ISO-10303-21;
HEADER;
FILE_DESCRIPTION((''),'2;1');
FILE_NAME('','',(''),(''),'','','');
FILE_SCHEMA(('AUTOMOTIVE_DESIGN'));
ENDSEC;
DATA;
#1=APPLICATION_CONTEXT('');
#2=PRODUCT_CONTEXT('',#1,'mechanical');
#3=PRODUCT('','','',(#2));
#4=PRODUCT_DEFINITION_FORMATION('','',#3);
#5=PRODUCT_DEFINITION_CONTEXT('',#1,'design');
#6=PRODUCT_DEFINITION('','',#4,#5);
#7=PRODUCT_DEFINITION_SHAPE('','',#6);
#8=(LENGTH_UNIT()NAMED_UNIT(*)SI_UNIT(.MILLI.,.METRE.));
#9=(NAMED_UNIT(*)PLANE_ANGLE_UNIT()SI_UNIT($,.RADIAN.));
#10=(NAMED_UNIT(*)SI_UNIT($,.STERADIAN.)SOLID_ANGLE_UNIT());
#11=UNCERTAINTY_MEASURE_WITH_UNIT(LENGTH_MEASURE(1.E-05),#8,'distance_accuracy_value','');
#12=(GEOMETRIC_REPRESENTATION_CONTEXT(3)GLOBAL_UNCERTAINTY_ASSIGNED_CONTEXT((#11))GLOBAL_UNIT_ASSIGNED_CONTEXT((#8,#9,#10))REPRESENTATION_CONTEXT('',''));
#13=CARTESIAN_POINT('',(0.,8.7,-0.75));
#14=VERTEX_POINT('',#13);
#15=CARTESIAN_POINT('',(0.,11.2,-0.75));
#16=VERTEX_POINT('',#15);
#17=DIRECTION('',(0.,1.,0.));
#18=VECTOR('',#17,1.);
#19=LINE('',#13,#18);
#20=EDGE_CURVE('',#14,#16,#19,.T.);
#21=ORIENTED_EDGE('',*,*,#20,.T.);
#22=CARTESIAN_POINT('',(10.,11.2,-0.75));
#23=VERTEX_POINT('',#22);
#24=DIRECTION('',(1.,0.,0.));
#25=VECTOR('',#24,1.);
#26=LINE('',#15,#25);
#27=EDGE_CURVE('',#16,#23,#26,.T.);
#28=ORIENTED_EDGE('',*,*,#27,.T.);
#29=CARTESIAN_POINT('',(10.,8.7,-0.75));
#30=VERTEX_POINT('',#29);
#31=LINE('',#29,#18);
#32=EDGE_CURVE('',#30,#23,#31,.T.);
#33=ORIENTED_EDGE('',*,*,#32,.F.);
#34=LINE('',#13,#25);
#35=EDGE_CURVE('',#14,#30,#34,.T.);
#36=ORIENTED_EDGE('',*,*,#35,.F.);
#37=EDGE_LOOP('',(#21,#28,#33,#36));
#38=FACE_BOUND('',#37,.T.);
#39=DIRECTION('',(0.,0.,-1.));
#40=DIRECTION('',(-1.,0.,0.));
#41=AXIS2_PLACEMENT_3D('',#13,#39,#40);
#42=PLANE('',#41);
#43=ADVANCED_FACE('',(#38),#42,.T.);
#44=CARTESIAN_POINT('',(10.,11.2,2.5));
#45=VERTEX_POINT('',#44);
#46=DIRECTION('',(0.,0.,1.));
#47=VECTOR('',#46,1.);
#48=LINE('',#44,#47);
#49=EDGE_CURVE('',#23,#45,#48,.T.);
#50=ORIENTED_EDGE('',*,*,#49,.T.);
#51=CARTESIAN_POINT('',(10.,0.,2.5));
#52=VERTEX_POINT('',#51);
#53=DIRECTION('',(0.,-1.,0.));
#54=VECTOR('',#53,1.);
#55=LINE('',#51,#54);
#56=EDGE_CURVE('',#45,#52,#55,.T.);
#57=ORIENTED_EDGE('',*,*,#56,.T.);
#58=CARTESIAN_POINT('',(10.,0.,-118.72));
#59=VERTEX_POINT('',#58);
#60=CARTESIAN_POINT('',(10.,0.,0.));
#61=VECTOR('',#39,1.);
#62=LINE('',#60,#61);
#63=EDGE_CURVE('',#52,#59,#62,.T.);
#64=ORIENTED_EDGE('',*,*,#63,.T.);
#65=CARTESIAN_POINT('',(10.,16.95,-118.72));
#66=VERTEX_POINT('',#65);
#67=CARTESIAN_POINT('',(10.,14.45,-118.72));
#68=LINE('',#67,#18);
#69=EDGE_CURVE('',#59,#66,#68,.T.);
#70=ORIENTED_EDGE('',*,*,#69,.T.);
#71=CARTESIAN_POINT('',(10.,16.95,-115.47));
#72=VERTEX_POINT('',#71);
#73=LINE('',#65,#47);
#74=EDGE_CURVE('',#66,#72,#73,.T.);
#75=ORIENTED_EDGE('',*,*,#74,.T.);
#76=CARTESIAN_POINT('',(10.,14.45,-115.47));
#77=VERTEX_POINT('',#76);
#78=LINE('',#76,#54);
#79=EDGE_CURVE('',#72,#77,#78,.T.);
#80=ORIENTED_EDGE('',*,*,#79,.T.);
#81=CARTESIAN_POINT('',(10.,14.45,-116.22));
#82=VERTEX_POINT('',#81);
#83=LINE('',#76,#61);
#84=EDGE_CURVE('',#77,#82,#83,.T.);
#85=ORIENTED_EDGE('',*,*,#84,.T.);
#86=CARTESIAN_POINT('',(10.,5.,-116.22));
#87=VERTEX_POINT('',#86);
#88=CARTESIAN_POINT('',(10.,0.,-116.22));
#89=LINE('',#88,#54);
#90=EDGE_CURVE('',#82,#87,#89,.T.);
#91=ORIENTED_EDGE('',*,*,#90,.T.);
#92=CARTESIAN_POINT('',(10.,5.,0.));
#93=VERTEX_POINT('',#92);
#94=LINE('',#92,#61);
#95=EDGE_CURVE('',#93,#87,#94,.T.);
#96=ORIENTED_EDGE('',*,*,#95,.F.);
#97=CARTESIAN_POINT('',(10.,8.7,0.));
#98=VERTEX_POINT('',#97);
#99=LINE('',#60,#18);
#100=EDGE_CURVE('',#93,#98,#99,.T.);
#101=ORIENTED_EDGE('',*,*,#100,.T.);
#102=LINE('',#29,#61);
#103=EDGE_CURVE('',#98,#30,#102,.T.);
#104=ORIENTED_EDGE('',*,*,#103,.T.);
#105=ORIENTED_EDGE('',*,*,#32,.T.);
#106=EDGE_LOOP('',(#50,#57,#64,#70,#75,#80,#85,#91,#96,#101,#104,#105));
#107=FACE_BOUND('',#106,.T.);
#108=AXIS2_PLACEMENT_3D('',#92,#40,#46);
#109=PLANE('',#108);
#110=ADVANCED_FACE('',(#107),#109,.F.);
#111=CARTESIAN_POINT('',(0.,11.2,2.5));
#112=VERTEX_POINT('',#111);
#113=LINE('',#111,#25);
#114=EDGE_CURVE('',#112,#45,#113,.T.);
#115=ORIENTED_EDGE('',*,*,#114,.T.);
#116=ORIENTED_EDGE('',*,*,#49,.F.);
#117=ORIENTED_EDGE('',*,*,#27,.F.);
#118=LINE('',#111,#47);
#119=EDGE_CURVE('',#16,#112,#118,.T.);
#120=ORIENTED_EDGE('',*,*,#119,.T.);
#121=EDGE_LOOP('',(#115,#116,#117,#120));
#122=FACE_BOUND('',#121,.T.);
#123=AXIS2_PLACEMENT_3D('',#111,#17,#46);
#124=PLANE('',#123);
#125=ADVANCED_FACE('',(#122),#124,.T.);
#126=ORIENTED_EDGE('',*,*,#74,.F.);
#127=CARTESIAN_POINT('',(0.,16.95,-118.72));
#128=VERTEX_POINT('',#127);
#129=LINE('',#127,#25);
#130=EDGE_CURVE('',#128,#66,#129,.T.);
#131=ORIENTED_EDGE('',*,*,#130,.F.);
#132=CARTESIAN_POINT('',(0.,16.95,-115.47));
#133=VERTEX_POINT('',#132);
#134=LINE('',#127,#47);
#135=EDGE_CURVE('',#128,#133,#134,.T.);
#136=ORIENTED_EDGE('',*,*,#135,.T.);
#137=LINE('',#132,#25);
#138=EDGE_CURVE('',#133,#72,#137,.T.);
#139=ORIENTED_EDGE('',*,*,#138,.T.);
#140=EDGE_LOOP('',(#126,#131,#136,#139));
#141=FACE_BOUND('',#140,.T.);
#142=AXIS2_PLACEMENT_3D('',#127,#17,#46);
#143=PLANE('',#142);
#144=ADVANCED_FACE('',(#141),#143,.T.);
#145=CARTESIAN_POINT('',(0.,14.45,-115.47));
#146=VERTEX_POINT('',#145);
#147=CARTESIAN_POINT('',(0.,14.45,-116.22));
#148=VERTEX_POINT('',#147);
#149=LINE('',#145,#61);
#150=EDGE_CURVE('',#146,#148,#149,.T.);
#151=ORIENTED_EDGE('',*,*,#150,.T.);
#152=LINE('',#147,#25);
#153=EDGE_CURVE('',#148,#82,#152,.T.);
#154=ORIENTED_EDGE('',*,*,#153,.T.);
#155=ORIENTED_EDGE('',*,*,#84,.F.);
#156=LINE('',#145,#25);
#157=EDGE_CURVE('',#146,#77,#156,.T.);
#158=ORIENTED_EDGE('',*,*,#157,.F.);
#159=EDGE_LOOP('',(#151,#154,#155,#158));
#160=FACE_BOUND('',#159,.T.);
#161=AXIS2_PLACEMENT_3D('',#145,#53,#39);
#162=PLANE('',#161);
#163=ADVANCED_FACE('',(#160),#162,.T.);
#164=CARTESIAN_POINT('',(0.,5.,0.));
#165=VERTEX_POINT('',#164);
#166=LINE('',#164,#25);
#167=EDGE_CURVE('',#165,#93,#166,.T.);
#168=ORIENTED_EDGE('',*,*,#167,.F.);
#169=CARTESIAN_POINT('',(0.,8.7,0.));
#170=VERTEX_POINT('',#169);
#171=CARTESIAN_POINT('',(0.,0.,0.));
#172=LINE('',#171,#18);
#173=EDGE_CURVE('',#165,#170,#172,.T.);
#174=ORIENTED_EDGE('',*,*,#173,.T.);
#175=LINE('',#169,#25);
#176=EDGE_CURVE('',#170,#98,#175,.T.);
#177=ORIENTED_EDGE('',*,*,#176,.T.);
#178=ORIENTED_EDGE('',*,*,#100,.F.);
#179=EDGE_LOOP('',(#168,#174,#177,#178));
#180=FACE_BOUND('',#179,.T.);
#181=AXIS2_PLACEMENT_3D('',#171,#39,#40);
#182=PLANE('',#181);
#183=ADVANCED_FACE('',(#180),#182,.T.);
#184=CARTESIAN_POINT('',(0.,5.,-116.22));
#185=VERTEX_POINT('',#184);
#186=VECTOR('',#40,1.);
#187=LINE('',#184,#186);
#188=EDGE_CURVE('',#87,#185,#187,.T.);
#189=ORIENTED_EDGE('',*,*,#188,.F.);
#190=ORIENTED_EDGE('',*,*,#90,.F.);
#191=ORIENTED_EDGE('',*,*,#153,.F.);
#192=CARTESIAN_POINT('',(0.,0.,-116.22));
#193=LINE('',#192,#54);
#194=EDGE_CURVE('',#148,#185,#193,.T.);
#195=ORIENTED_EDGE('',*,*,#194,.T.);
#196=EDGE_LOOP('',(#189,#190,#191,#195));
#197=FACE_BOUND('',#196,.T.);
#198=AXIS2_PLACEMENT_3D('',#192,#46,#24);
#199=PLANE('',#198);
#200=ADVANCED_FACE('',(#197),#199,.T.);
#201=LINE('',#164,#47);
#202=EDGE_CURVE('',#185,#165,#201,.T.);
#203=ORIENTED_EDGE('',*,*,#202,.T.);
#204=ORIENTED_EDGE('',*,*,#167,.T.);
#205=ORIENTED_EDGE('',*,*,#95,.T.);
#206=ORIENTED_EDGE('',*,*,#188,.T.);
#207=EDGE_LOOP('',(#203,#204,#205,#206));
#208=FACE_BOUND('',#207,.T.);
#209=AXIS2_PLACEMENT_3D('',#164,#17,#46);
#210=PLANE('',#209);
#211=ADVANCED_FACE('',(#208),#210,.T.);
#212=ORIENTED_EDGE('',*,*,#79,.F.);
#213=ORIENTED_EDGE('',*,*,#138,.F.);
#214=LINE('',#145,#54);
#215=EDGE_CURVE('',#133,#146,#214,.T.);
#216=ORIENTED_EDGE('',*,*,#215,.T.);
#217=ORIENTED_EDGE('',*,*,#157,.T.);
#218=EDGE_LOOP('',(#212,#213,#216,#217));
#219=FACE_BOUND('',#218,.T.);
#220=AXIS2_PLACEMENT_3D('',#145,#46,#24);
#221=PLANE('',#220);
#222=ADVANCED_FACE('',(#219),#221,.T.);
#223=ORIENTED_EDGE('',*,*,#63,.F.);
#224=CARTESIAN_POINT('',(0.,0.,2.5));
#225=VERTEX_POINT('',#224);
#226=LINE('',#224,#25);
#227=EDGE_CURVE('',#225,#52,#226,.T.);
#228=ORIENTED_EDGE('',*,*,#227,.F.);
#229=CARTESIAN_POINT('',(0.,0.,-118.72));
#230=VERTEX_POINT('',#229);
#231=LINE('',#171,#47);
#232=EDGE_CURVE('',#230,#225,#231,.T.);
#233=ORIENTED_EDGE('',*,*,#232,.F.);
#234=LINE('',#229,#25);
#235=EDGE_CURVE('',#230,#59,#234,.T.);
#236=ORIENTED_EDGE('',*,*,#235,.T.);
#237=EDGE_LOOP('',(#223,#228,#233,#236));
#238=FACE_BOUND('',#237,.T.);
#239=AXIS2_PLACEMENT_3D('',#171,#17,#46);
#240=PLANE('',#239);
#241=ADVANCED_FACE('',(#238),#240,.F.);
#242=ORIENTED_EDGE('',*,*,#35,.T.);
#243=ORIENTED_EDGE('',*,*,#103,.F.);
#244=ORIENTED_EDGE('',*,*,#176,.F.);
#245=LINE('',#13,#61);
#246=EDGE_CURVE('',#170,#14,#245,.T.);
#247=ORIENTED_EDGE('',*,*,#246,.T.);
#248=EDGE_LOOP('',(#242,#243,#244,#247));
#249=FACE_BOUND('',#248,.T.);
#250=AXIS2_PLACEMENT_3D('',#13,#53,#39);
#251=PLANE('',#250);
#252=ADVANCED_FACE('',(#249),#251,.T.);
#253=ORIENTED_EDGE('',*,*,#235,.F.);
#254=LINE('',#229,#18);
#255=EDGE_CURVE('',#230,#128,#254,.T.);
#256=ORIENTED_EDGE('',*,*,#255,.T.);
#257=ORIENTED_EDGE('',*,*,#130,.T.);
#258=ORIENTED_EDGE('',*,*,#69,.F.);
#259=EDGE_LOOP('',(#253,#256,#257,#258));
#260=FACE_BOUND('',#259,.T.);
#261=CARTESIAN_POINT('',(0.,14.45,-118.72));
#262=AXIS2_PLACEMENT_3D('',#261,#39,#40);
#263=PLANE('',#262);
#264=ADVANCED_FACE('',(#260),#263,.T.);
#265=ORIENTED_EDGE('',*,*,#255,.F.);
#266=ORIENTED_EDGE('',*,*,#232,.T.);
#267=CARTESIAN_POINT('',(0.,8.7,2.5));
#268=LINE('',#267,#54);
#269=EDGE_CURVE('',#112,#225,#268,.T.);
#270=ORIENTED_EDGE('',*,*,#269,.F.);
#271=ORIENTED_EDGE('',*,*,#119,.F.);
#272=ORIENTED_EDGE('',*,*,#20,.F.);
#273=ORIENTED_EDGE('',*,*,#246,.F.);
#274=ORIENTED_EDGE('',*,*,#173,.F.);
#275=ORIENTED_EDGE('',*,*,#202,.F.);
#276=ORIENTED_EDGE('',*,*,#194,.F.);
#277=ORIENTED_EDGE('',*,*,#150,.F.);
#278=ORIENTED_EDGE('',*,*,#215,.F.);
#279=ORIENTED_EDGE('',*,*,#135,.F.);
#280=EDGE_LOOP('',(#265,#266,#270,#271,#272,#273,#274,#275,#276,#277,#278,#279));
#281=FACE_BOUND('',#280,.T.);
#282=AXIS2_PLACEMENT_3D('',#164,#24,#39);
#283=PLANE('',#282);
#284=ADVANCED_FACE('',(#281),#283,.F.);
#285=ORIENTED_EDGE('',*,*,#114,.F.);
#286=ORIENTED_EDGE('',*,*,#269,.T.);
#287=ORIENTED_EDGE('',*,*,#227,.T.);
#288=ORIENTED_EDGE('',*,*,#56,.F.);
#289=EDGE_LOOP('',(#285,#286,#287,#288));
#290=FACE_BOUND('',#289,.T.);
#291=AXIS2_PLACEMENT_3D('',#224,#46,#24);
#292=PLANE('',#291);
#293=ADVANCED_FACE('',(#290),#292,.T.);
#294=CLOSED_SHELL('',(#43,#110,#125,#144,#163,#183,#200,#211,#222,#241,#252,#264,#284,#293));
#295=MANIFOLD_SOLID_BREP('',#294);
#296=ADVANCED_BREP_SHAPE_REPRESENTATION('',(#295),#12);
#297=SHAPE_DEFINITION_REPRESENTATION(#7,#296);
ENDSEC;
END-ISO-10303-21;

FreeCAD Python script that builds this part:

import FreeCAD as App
import Part
import Sketcher
Q = App.Units.Quantity

doc = App.newDocument("Part")
body = doc.addObject("PartDesign::Body", "Body")

# Sketch on XZ plane
sketch1 = doc.addObject("Sketcher::SketchObject", "Sketch")
body.addObject(sketch1)
sketch1.AttachmentSupport = (doc.XZ_Plane, [""])
sketch1.MapMode = "FlatFace"
sketch1.addGeometry([
    Part.LineSegment(App.Vector(0, -116.22, 0), App.Vector(0, 0, 0)),
    Part.LineSegment(App.Vector(0, 0, 0), App.Vector(10, 0, 0)),
    Part.LineSegment(App.Vector(10, 0, 0), App.Vector(10, -116.22, 0)),
    Part.LineSegment(App.Vector(10, -116.22, 0), App.Vector(0, -116.22, 0)),
], False)
sketch1.addConstraint([
    Sketcher.Constraint("Coincident", 0, 2, 1, 1),
    Sketcher.Constraint("Coincident", 1, 2, 2, 1),
    Sketcher.Constraint("Coincident", 2, 2, 3, 1),
    Sketcher.Constraint("Coincident", 3, 2, 0, 1),
    Sketcher.Constraint("Vertical", 0),
    Sketcher.Constraint("Horizontal", 1),
    Sketcher.Constraint("Vertical", 2),
    Sketcher.Constraint("Horizontal", 3),
    Sketcher.Constraint("Coincident", 0, 2, -1, 1),
    Sketcher.Constraint("DistanceX", 1, 1, 1, 2, Q("10 mm")),
    Sketcher.Constraint("DistanceY", 0, 1, 0, 2, Q("116.22 mm")),
])
pad1 = doc.addObject("PartDesign::Pad", "Pad")
body.addObject(pad1)
pad1.Profile = sketch1
pad1.Length = 5
pad1.Reversed = True

# Sketch on YZ plane
sketch2 = doc.addObject("Sketcher::SketchObject", "Sketch001")
body.addObject(sketch2)
sketch2.AttachmentSupport = (doc.YZ_Plane, [""])
sketch2.MapMode = "FlatFace"
sketch2.AttachmentOffset = App.Placement(App.Vector(0, 0, 10), App.Rotation())
sketch2.addGeometry([
    Part.LineSegment(App.Vector(8.7, 0, 0), App.Vector(8.7, -0.75, 0)),  # 0
    Part.LineSegment(App.Vector(8.7, -0.75, 0), App.Vector(11.2, -0.75, 0)),  # 1
    Part.LineSegment(App.Vector(11.2, -0.75, 0), App.Vector(11.2, 2.5, 0)),  # 2
    Part.LineSegment(App.Vector(11.2, 2.5, 0), App.Vector(0, 2.5, 0)),  # 3
    Part.LineSegment(App.Vector(0, 2.5, 0), App.Vector(0, 0, 0)),  # 4
    Part.LineSegment(App.Vector(0, 0, 0), App.Vector(8.7, 0, 0)),  # 5
    Part.LineSegment(App.Vector(0, -116.22, 0), App.Vector(0, -118.72, 0)),  # 6
    Part.LineSegment(App.Vector(0, -118.72, 0), App.Vector(16.95, -118.72, 0)),  # 7
    Part.LineSegment(App.Vector(16.95, -118.72, 0), App.Vector(16.95, -115.47, 0)),  # 8
    Part.LineSegment(App.Vector(16.95, -115.47, 0), App.Vector(14.45, -115.47, 0)),  # 9
    Part.LineSegment(App.Vector(14.45, -115.47, 0), App.Vector(14.45, -116.22, 0)),  # 10
    Part.LineSegment(App.Vector(14.45, -116.22, 0), App.Vector(0, -116.22, 0)),  # 11
], False)
sketch2.addConstraint([
    Sketcher.Constraint("Coincident", 0, 2, 1, 1),
    Sketcher.Constraint("Coincident", 1, 2, 2, 1),
    Sketcher.Constraint("Coincident", 2, 2, 3, 1),
    Sketcher.Constraint("Coincident", 3, 2, 4, 1),
    Sketcher.Constraint("Coincident", 4, 2, 5, 1),
    Sketcher.Constraint("Coincident", 5, 2, 0, 1),
    Sketcher.Constraint("Coincident", 6, 2, 7, 1),
    Sketcher.Constraint("Coincident", 7, 2, 8, 1),
    Sketcher.Constraint("Coincident", 8, 2, 9, 1),
    Sketcher.Constraint("Coincident", 9, 2, 10, 1),
    Sketcher.Constraint("Coincident", 10, 2, 11, 1),
    Sketcher.Constraint("Coincident", 11, 2, 6, 1),
    Sketcher.Constraint("Vertical", 0),
    Sketcher.Constraint("Horizontal", 1),
    Sketcher.Constraint("Vertical", 2),
    Sketcher.Constraint("Horizontal", 3),
    Sketcher.Constraint("Vertical", 4),
    Sketcher.Constraint("Horizontal", 5),
    Sketcher.Constraint("Vertical", 6),
    Sketcher.Constraint("Horizontal", 7),
    Sketcher.Constraint("Vertical", 8),
    Sketcher.Constraint("Horizontal", 9),
    Sketcher.Constraint("Vertical", 10),
    Sketcher.Constraint("Horizontal", 11),
    Sketcher.Constraint("Coincident", 4, 2, -1, 1),
    Sketcher.Constraint("PointOnObject", 6, 2, -2),
    Sketcher.Constraint("Equal", 1, 9),
    Sketcher.Constraint("Equal", 9, 4),
    Sketcher.Constraint("Equal", 4, 6),
    Sketcher.Constraint("Equal", 2, 8),
    Sketcher.Constraint("DistanceX", 1, 1, 1, 2, Q("2.5 mm")),
    Sketcher.Constraint("DistanceX", 3, 2, 3, 1, Q("11.2 mm")),
    Sketcher.Constraint("DistanceX", 7, 1, 7, 2, Q("16.95 mm")),
    Sketcher.Constraint("DistanceY", 0, 2, 0, 1, Q("0.75 mm")),
    Sketcher.Constraint("DistanceY", 6, 2, -1, 1, Q("118.72 mm")),
])
pad2 = doc.addObject("PartDesign::Pad", "Pad001")
body.addObject(pad2)
pad2.Profile = sketch2
pad2.Length = 10
pad2.Reversed = True

doc.recompute()
